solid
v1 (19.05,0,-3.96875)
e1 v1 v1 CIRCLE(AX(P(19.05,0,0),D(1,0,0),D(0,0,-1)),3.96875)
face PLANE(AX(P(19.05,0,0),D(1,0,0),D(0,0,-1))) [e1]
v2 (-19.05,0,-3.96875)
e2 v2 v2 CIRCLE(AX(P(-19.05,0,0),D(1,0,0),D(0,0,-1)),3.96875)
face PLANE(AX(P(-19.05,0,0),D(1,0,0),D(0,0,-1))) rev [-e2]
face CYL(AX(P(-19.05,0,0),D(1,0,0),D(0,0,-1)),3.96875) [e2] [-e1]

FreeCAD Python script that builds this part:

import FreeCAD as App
import Part
import Sketcher
Q = App.Units.Quantity

doc = App.newDocument("Part")
body = doc.addObject("PartDesign::Body", "Body")

# Sketch on YZ plane
sketch1 = body.newObject("Sketcher::SketchObject", "Sketch")
sketch1.AttachmentSupport = (doc.getObject("YZ_Plane"), [""])
sketch1.MapMode = "FlatFace"
sketch1.addGeometry(Part.Circle(App.Vector(0, 0, 0), App.Vector(0, 0, 1), 4), False)
sketch1.addConstraint(Sketcher.Constraint("Coincident", 0, 3, -1, 1))
sketch1.addConstraint(Sketcher.Constraint("Diameter", 0, Q("0.3125 in")))
pad1 = body.newObject("PartDesign::Pad", "Pad")
pad1.Profile = sketch1
pad1.Type = "TwoLengths"
pad1.Length = Q("0.75 in")
pad1.Length2 = Q("0.75 in")

doc.recompute()
